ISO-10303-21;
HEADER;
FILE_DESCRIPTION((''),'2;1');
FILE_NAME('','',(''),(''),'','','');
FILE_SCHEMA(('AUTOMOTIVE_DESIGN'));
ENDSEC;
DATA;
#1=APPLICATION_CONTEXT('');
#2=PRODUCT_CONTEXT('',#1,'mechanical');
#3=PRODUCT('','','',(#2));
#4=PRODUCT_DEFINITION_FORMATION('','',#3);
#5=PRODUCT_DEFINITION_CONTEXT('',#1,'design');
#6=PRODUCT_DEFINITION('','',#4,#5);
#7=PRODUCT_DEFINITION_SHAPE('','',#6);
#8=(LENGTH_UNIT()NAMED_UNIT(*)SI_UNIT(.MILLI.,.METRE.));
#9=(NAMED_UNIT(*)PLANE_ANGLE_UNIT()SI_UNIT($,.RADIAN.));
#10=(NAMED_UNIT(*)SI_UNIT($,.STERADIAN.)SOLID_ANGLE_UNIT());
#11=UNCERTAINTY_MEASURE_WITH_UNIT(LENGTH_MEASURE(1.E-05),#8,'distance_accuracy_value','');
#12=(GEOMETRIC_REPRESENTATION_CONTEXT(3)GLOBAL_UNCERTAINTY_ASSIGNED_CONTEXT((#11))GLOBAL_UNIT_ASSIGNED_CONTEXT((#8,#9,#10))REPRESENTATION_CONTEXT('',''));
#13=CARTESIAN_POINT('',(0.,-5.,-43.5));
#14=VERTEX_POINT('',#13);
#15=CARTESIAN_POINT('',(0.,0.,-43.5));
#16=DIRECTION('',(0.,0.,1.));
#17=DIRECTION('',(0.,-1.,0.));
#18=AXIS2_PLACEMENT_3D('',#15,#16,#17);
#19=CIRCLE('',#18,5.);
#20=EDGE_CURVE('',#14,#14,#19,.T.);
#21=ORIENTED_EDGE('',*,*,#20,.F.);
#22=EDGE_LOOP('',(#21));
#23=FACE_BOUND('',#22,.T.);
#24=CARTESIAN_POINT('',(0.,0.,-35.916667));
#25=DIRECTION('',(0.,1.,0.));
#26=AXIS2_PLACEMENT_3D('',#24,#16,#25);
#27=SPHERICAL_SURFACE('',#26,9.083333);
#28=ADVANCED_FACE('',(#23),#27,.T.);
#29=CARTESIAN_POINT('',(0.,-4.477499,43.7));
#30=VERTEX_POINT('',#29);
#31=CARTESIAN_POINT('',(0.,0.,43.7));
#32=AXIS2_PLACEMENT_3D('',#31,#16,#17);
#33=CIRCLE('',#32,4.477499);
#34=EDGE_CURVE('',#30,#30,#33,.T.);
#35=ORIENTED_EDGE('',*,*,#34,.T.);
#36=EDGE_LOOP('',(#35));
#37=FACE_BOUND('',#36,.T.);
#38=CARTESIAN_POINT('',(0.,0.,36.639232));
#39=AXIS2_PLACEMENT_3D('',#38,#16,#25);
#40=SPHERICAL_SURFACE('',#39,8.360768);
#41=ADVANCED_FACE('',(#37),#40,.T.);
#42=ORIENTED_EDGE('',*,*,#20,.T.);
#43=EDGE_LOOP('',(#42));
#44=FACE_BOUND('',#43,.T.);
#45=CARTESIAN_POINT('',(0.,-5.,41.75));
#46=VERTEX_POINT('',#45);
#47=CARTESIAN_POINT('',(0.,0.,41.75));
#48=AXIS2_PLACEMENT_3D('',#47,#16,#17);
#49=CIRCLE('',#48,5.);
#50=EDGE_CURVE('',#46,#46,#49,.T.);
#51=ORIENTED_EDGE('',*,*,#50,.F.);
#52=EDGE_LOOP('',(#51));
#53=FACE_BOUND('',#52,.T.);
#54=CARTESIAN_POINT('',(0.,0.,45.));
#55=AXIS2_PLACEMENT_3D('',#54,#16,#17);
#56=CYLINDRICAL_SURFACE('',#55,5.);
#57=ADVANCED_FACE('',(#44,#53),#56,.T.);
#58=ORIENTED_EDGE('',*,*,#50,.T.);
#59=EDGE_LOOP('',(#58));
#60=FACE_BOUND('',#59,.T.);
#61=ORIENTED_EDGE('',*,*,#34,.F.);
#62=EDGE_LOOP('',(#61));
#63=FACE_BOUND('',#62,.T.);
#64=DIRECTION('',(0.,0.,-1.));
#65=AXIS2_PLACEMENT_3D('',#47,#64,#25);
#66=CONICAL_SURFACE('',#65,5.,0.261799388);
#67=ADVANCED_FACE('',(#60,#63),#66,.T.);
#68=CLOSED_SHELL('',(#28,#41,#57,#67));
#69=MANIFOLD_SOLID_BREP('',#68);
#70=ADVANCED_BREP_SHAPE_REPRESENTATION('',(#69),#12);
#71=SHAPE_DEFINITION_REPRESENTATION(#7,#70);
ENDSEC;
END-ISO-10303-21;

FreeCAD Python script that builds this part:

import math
import FreeCAD as App
import Part
import Sketcher

V = App.Vector
Q = App.Units.Quantity

doc = App.newDocument("Part")
body = doc.addObject("PartDesign::Body", "Body")

# Sketch on YZ plane
sketch1 = doc.addObject("Sketcher::SketchObject", "Sketch")
body.addObject(sketch1)
sketch1.AttachmentSupport = (doc.YZ_Plane, [""])
sketch1.MapMode = "FlatFace"
sketch1.addGeometry(Part.LineSegment(V(0, 45, 0), V(0, -45, 0)), False)
sketch1.addGeometry(Part.ArcOfCircle(Part.Circle(V(0, -35.916667, 0), V(0, 0, 1), 9.083333), math.radians(-90), math.radians(-56.601512)), False)
sketch1.addGeometry(Part.LineSegment(V(5, -43.5, 0), V(5, 41.75, 0)), False)
sketch1.addGeometry(Part.LineSegment(V(5, 41.75, 0), V(4.477499, 43.7, 0)), False)
sketch1.addGeometry(Part.ArcOfCircle(Part.Circle(V(0, 36.639232, 0), V(0, 0, 1), 8.360768), math.radians(57.619678), math.radians(90)), False)
sketch1.addConstraint(Sketcher.Constraint("Coincident", 0, 2, 1, 1))
sketch1.addConstraint(Sketcher.Constraint("Coincident", 1, 2, 2, 1))
sketch1.addConstraint(Sketcher.Constraint("Coincident", 2, 2, 3, 1))
sketch1.addConstraint(Sketcher.Constraint("Coincident", 3, 2, 4, 1))
sketch1.addConstraint(Sketcher.Constraint("Coincident", 4, 2, 0, 1))
sketch1.addConstraint(Sketcher.Constraint("Vertical", 0))
sketch1.addConstraint(Sketcher.Constraint("Vertical", 2))
sketch1.addConstraint(Sketcher.Constraint("Symmetric", 0, 2, 4, 2, -1, 1))
sketch1.addConstraint(Sketcher.Constraint("PointOnObject", 1, 3, -2))
sketch1.addConstraint(Sketcher.Constraint("PointOnObject", 4, 3, -2))
sketch1.addConstraint(Sketcher.Constraint("DistanceY", 0, 2, 0, 1, 90.0))
sketch1.addConstraint(Sketcher.Constraint("Angle", 3, Q("105 deg")))
sketch1.addConstraint(Sketcher.Constraint("DistanceX", -1, 1, 1, 2, 5.0))
sketch1.addConstraint(Sketcher.Constraint("DistanceY", 2, 1, 2, 2, 85.25))
sketch1.addConstraint(Sketcher.Constraint("DistanceY", 1, 2, -1, 1, 43.5))
sketch1.addConstraint(Sketcher.Constraint("DistanceY", -1, 1, 3, 2, 43.7))
revolution = doc.addObject("PartDesign::Revolution", "Revolution")
body.addObject(revolution)
revolution.Profile = sketch1
revolution.ReferenceAxis = (sketch1, ["V_Axis"])
revolution.Angle = 360

doc.recompute()
